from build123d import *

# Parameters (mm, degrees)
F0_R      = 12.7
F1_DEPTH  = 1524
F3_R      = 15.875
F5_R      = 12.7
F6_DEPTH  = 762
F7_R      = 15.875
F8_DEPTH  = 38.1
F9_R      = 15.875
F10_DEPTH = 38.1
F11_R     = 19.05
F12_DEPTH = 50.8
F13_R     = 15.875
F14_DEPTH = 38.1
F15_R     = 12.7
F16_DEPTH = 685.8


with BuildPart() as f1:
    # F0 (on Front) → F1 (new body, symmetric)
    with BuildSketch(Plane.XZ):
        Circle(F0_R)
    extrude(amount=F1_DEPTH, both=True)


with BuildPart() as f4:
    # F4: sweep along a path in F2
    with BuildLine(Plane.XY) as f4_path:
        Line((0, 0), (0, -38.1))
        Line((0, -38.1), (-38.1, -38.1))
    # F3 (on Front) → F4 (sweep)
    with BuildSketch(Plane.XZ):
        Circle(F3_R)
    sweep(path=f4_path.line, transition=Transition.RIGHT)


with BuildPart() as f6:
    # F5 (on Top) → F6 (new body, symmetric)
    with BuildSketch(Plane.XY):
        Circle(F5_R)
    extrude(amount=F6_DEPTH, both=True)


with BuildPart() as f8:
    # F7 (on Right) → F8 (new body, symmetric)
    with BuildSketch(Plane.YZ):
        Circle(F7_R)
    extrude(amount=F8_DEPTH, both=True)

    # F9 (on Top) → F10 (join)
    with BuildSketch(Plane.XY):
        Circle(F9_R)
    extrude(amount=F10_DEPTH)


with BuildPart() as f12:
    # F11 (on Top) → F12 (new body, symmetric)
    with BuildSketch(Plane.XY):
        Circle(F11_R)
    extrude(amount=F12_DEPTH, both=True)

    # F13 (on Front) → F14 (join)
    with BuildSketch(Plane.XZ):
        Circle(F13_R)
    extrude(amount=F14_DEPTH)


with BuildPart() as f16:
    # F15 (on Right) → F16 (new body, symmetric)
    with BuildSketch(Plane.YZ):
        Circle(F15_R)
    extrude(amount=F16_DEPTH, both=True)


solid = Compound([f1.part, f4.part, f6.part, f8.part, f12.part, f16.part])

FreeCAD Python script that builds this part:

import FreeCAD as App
import Part
import Sketcher
Q = App.Units.Quantity

doc = App.newDocument("Part")
body = doc.addObject("PartDesign::Body", "Body")

sketch1 = body.newObject("Sketcher::SketchObject", "Sketch")
sketch1.AttachmentSupport = (doc.getObject("XZ_Plane"), [""])
sketch1.MapMode = "FlatFace"
sketch1.addGeometry(Part.Circle(App.Vector(0, 0, 0), App.Vector(0, 0, 1), 13), False)
sketch1.addConstraint(Sketcher.Constraint("Coincident", 0, 3, -1, 1))
sketch1.addConstraint(Sketcher.Constraint("Diameter", 0, Q("1 in")))
pad1 = body.newObject("PartDesign::Pad", "Pad")
pad1.Profile = sketch1
pad1.Length = Q("120 in")
pad1.Midplane = True
body2 = doc.addObject("PartDesign::Body", "Body001")

sketch2 = body2.newObject("Sketcher::SketchObject", "Sketch001")
sketch2.AttachmentSupport = (doc.getObject("XZ_Plane001"), [""])
sketch2.MapMode = "FlatFace"
sketch2.addGeometry(Part.Circle(App.Vector(0, 0, 0), App.Vector(0, 0, 1), 16), False)
sketch2.addConstraint(Sketcher.Constraint("Coincident", 0, 3, -1, 1))
sketch2.addConstraint(Sketcher.Constraint("Diameter", 0, Q("1.25 in")))

sketch3 = body2.newObject("Sketcher::SketchObject", "Sketch002")
sketch3.AttachmentSupport = (doc.getObject("XY_Plane001"), [""])
sketch3.MapMode = "FlatFace"
sketch3.addGeometry(Part.LineSegment(App.Vector(0, 0, 0), App.Vector(0, -38, 0)), False)
sketch3.addGeometry(Part.LineSegment(App.Vector(0, -38, 0), App.Vector(-38, -38, 0)), False)
sketch3.addConstraint(Sketcher.Constraint("Coincident", 0, 2, 1, 1))
sketch3.addConstraint(Sketcher.Constraint("Vertical", 0))
sketch3.addConstraint(Sketcher.Constraint("Horizontal", 1))
sketch3.addConstraint(Sketcher.Constraint("Coincident", 0, 1, -1, 1))
sketch3.addConstraint(Sketcher.Constraint("Equal", 1, 0))
sketch3.addConstraint(Sketcher.Constraint("DistanceX", 1, 2, 1, 1, Q("1.5 in")))
doc.recompute()

additivepipe = body2.newObject("PartDesign::AdditivePipe", "AdditivePipe")
additivepipe.Profile = sketch2
additivepipe.Spine = (sketch3, ["Edge1", "Edge2"])
additivepipe.Transition = "Right corner"
body3 = doc.addObject("PartDesign::Body", "Body002")

sketch4 = body3.newObject("Sketcher::SketchObject", "Sketch003")
sketch4.AttachmentSupport = (doc.getObject("XY_Plane002"), [""])
sketch4.MapMode = "FlatFace"
sketch4.addGeometry(Part.Circle(App.Vector(0, 0, 0), App.Vector(0, 0, 1), 13), False)
sketch4.addConstraint(Sketcher.Constraint("Coincident", 0, 3, -1, 1))
sketch4.addConstraint(Sketcher.Constraint("Diameter", 0, Q("1 in")))
pad2 = body3.newObject("PartDesign::Pad", "Pad001")
pad2.Profile = sketch4
pad2.Length = Q("60 in")
pad2.Midplane = True
body4 = doc.addObject("PartDesign::Body", "Body003")

sketch5 = body4.newObject("Sketcher::SketchObject", "Sketch004")
sketch5.AttachmentSupport = (doc.getObject("YZ_Plane003"), [""])
sketch5.MapMode = "FlatFace"
sketch5.addGeometry(Part.Circle(App.Vector(0, 0, 0), App.Vector(0, 0, 1), 16), False)
sketch5.addConstraint(Sketcher.Constraint("Coincident", 0, 3, -1, 1))
sketch5.addConstraint(Sketcher.Constraint("Diameter", 0, Q("1.25 in")))
pad3 = body4.newObject("PartDesign::Pad", "Pad002")
pad3.Profile = sketch5
pad3.Length = Q("3 in")
pad3.Midplane = True

sketch6 = body4.newObject("Sketcher::SketchObject", "Sketch005")
sketch6.AttachmentSupport = (doc.getObject("XY_Plane003"), [""])
sketch6.MapMode = "FlatFace"
sketch6.addGeometry(Part.Circle(App.Vector(0, 0, 0), App.Vector(0, 0, 1), 16), False)
sketch6.addConstraint(Sketcher.Constraint("Coincident", 0, 3, -1, 1))
sketch6.addConstraint(Sketcher.Constraint("Diameter", 0, Q("1.25 in")))
pad4 = body4.newObject("PartDesign::Pad", "Pad003")
pad4.Profile = sketch6
pad4.Length = Q("1.5 in")
body5 = doc.addObject("PartDesign::Body", "Body004")

sketch7 = body5.newObject("Sketcher::SketchObject", "Sketch006")
sketch7.AttachmentSupport = (doc.getObject("XY_Plane004"), [""])
sketch7.MapMode = "FlatFace"
sketch7.addGeometry(Part.Circle(App.Vector(0, 0, 0), App.Vector(0, 0, 1), 19), False)
sketch7.addConstraint(Sketcher.Constraint("Coincident", 0, 3, -1, 1))
sketch7.addConstraint(Sketcher.Constraint("Diameter", 0, Q("1.5 in")))
pad5 = body5.newObject("PartDesign::Pad", "Pad004")
pad5.Profile = sketch7
pad5.Length = Q("4 in")
pad5.Midplane = True

sketch8 = body5.newObject("Sketcher::SketchObject", "Sketch007")
sketch8.AttachmentSupport = (doc.getObject("XZ_Plane004"), [""])
sketch8.MapMode = "FlatFace"
sketch8.addGeometry(Part.Circle(App.Vector(0, 0, 0), App.Vector(0, 0, 1), 16), False)
sketch8.addConstraint(Sketcher.Constraint("Coincident", 0, 3, -1, 1))
sketch8.addConstraint(Sketcher.Constraint("Diameter", 0, Q("1.25 in")))
pad6 = body5.newObject("PartDesign::Pad", "Pad005")
pad6.Profile = sketch8
pad6.Length = Q("1.5 in")
body6 = doc.addObject("PartDesign::Body", "Body005")

sketch9 = body6.newObject("Sketcher::SketchObject", "Sketch008")
sketch9.AttachmentSupport = (doc.getObject("YZ_Plane005"), [""])
sketch9.MapMode = "FlatFace"
sketch9.addGeometry(Part.Circle(App.Vector(0, 0, 0), App.Vector(0, 0, 1), 13), False)
sketch9.addConstraint(Sketcher.Constraint("Coincident", 0, 3, -1, 1))
sketch9.addConstraint(Sketcher.Constraint("Diameter", 0, Q("1 in")))
pad7 = body6.newObject("PartDesign::Pad", "Pad006")
pad7.Profile = sketch9
pad7.Length = Q("54 in")
pad7.Midplane = True

doc.recompute()
